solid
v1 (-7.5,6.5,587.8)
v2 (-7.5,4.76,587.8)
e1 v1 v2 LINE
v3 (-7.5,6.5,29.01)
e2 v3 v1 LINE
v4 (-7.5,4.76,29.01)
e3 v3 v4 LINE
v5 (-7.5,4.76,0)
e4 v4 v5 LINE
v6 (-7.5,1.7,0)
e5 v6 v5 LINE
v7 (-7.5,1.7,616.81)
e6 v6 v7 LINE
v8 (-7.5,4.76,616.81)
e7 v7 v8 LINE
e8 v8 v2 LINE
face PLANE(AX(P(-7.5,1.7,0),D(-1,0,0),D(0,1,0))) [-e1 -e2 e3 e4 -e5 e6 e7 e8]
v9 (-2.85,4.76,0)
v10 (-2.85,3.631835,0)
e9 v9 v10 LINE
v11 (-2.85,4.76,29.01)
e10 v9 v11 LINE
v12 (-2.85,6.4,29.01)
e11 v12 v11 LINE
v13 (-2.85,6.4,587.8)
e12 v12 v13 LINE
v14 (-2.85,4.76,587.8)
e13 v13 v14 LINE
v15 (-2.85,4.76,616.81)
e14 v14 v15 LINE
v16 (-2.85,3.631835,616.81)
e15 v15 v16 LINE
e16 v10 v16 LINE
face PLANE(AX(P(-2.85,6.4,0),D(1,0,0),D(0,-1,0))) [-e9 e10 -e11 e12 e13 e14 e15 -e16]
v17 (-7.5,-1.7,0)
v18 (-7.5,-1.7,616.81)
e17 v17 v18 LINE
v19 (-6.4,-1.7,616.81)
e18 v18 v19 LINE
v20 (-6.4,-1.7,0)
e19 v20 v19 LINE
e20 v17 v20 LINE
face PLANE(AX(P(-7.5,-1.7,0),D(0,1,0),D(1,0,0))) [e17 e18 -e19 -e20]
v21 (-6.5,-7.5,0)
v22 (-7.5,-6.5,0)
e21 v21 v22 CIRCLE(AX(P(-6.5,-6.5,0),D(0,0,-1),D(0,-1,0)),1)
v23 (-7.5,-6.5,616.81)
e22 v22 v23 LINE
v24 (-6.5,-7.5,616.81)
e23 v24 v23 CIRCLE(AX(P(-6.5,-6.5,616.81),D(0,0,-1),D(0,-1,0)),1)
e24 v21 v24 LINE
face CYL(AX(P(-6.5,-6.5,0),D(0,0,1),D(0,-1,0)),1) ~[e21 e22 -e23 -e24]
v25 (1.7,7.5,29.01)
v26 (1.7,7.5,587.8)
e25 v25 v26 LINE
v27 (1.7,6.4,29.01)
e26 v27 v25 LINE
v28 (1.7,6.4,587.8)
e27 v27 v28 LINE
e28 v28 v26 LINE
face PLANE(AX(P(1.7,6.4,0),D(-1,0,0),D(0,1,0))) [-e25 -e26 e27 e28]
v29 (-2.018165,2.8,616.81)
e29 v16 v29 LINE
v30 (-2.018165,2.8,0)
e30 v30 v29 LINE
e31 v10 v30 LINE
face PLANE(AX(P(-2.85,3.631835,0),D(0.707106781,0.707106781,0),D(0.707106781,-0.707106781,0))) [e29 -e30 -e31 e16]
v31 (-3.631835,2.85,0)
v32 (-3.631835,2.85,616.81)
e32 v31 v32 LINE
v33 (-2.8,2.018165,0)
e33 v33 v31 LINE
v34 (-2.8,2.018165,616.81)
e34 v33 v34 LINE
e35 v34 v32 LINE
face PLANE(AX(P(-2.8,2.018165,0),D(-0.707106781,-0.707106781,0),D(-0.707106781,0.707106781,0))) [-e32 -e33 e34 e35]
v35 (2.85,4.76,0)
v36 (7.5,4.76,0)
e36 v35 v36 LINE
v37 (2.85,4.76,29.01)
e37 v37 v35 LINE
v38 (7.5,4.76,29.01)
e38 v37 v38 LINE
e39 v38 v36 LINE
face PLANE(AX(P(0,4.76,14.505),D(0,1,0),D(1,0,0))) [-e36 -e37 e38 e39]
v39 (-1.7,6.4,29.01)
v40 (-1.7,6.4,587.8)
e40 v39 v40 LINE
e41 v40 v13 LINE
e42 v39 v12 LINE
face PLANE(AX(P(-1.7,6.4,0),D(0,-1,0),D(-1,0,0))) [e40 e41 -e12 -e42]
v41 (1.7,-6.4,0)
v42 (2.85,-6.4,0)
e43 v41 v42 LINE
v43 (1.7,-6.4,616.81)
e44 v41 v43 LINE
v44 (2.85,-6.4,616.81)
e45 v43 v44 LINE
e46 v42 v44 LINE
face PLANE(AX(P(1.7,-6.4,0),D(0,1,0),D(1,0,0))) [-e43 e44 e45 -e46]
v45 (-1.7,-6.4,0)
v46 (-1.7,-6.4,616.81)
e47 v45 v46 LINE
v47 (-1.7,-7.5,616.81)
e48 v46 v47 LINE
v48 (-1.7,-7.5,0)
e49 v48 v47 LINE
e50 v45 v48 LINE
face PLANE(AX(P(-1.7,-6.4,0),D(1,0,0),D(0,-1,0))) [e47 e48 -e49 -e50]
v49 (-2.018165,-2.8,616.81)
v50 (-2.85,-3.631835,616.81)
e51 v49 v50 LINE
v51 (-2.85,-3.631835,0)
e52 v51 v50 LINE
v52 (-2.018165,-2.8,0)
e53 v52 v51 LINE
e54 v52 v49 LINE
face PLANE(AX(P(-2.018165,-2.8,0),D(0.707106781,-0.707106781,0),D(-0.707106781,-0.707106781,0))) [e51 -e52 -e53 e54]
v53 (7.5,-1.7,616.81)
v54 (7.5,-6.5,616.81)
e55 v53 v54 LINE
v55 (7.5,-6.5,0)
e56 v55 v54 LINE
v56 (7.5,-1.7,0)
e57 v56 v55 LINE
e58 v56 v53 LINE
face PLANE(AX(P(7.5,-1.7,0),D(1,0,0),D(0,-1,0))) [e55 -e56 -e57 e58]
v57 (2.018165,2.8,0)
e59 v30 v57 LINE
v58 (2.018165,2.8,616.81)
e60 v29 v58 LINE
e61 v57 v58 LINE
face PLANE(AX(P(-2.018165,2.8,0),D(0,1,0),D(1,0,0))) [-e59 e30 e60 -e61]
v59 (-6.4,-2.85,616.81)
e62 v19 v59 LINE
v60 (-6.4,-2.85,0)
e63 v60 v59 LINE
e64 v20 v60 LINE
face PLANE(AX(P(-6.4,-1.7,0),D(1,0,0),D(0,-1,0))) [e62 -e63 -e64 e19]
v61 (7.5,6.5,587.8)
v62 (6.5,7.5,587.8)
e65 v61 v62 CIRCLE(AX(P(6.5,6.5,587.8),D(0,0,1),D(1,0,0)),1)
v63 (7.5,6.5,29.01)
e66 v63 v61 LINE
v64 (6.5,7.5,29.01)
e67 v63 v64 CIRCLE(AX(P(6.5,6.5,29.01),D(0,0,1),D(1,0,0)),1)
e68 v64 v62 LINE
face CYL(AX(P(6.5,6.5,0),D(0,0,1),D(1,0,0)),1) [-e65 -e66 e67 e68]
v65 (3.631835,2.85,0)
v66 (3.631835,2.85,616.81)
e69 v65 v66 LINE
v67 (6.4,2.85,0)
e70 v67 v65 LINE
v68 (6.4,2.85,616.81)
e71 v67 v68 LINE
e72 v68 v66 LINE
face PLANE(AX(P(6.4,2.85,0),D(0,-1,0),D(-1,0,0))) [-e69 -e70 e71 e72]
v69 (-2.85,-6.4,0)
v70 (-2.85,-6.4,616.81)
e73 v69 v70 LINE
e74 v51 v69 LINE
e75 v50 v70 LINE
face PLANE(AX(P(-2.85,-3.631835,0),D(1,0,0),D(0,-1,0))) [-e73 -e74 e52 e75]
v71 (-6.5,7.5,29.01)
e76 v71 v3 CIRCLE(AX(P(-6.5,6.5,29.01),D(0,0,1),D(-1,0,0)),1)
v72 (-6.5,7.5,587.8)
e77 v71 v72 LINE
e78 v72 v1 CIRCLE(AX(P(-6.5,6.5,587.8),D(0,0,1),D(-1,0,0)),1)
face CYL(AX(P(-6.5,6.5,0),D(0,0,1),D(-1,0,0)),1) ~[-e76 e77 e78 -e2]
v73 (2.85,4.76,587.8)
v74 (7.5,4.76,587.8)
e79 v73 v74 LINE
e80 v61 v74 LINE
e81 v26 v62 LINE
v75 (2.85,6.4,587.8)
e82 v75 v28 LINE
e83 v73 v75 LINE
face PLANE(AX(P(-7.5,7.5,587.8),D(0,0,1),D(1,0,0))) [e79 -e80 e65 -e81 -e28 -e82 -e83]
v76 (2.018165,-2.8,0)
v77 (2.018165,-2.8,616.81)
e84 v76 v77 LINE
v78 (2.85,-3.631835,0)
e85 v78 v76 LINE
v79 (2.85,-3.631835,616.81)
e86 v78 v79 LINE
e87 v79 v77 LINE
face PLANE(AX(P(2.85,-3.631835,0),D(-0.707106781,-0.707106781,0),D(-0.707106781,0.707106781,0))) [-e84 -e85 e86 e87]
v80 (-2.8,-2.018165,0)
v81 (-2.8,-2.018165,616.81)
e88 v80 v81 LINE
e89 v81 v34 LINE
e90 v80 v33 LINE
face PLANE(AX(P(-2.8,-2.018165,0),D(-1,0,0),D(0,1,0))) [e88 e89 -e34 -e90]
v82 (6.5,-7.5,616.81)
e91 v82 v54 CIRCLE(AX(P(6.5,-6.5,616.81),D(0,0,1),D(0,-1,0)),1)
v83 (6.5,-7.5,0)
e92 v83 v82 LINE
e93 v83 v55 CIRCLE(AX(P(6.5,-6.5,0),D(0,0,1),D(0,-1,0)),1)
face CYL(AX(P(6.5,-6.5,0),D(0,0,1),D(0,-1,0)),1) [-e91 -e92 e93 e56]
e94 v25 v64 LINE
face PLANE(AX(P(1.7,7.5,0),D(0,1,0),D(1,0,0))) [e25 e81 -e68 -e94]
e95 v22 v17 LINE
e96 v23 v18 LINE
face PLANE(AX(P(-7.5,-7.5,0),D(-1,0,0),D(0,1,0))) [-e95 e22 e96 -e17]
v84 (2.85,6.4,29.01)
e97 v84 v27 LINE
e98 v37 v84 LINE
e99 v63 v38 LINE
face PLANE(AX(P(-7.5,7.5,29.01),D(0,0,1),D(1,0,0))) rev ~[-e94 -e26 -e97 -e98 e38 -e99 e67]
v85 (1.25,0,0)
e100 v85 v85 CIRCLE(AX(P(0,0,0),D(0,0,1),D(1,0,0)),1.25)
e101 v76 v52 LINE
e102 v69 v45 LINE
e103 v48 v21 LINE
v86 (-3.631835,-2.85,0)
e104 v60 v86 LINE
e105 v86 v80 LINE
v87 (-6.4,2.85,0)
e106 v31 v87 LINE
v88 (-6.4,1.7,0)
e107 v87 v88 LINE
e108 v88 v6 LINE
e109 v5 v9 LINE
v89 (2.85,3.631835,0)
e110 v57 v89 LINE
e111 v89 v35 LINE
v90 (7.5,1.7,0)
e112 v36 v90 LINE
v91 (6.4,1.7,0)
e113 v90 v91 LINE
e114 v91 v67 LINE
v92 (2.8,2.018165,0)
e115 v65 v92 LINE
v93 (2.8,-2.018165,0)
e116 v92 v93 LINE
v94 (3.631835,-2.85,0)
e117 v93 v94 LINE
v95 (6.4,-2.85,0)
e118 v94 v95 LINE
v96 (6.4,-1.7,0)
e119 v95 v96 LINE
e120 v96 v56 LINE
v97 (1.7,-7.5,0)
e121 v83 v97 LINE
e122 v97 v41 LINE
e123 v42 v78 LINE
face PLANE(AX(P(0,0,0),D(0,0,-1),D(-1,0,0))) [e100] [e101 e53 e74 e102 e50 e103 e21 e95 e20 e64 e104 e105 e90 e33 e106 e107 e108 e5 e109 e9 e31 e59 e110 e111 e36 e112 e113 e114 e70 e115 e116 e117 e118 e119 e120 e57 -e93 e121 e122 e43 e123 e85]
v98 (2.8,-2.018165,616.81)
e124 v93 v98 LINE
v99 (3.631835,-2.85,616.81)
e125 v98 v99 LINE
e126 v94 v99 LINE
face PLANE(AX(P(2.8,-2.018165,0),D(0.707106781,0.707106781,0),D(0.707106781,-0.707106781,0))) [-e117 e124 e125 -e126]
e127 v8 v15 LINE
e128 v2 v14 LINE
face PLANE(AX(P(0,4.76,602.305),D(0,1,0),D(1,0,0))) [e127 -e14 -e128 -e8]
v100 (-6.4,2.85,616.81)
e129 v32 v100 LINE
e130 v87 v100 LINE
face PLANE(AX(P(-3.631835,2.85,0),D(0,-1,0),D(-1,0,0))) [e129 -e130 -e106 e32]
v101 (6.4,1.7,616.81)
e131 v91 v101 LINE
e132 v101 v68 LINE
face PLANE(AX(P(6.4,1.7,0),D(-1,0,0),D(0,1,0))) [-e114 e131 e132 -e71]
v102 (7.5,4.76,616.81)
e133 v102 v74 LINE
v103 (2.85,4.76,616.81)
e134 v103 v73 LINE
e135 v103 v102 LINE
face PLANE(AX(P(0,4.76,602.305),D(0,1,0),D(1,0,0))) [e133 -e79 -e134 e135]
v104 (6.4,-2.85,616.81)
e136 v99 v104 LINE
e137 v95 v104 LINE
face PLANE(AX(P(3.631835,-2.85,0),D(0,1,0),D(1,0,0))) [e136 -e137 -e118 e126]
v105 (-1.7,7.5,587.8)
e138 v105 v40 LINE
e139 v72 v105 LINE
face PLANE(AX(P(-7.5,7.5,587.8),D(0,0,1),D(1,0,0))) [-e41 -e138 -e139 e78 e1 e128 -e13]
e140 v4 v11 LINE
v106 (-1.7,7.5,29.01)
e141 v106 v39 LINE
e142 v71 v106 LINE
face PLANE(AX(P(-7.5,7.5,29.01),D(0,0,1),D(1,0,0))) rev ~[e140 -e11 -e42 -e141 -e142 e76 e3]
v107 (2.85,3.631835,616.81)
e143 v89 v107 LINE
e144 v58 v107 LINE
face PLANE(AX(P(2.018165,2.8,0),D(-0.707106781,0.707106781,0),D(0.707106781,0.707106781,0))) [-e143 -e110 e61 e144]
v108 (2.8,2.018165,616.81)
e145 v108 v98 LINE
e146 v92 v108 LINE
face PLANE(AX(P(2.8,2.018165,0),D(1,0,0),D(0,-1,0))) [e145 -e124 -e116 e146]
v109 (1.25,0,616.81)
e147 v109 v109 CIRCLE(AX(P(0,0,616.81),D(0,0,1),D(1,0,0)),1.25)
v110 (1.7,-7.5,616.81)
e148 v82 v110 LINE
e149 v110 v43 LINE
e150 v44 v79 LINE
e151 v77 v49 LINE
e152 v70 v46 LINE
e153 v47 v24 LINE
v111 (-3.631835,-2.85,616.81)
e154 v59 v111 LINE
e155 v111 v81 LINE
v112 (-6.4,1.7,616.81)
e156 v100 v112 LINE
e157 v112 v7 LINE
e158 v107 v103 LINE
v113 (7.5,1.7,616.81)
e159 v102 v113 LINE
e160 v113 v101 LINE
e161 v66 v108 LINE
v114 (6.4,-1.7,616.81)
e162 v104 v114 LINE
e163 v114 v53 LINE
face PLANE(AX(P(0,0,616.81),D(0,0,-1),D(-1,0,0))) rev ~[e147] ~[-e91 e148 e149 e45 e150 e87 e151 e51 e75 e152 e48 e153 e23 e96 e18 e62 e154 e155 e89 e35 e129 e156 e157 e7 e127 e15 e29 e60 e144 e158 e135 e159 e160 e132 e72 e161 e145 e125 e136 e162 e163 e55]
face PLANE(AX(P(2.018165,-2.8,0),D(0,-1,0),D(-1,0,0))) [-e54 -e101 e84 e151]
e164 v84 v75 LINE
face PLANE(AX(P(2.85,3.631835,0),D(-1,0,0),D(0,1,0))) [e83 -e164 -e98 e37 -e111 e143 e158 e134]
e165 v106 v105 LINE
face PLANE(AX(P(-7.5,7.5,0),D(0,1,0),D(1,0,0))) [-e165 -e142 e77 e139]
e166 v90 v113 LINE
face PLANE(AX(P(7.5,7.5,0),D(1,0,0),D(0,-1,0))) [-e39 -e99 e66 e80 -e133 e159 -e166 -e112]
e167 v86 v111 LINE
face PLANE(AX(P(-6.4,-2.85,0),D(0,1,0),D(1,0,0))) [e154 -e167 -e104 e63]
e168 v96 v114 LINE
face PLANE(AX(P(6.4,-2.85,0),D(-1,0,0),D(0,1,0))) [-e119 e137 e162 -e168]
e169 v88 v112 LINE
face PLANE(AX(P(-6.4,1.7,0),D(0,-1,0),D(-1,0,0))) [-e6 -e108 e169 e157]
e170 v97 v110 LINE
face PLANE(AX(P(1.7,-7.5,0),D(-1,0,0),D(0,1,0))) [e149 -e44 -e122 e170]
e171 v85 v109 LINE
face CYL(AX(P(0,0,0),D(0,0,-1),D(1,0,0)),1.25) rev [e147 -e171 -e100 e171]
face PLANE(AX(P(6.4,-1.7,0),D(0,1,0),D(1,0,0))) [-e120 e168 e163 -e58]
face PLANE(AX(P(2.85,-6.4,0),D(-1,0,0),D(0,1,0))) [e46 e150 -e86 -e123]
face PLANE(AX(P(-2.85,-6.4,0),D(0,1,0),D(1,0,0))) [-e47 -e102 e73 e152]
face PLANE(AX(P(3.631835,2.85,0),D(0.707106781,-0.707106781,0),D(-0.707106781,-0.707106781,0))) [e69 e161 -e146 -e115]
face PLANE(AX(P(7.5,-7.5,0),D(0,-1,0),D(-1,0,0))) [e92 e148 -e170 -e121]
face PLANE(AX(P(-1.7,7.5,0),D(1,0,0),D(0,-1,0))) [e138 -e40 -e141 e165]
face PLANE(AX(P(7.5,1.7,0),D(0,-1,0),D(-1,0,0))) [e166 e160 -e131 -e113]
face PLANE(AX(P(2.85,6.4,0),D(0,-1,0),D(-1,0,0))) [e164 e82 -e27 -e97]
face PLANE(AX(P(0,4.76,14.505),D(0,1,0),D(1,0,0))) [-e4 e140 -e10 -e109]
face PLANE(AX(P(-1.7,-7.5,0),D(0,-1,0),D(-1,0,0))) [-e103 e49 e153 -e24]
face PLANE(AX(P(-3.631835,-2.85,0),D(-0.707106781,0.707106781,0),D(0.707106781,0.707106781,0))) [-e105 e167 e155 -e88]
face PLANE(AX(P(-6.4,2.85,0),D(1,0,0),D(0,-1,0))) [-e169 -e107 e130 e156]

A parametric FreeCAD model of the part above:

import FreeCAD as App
import Part
import Sketcher
Q = App.Units.Quantity


def edges_at(feature, points):
    """Names of the edges that pass closest to the given points."""
    edges = feature.Shape.Edges
    near = lambda p: min(range(len(edges)), key=lambda i: edges[i].distToShape(Part.Vertex(*p))[0])
    return sorted({f"Edge{near(p) + 1}" for p in points})


def add_polygon(sketch, points):
    """Adds a closed chain of lines whose ends are joined by coincident constraints."""
    first, n = sketch.GeometryCount, len(points)
    for a, b in zip(points, points[1:] + points[:1]):
        sketch.addGeometry(Part.LineSegment(App.Vector(*a, 0), App.Vector(*b, 0)), False)
    for i in range(n):
        sketch.addConstraint(Sketcher.Constraint("Coincident", first + i, 2, first + (i + 1) % n, 1))

doc = App.newDocument("Part")
params = doc.addObject("Spreadsheet::Sheet", "Params")
for row, (alias, value) in enumerate([
    ("sketch1_diameter", "2.5 mm"),
    ("sketch1_width", "5.8 mm"),
    ("sketch1_width2", "1.1 mm"),
    ("sketch1_width3", "1.15 mm"),
    ("pad1_length", "616.81 mm"),
    ("fillet_radius", "1 mm"),
    ("sketch2_width", "15 mm"),
    ("sketch2_height", "29.01 mm"),
    ("pocket1_length", "2.74 mm"),
    ("sketch3_width", "15 mm"),
    ("sketch3_height", "29.01 mm"),
    ("pocket2_length", "2.74 mm"),
], start=1):
    params.set(f"A{row}", alias)
    params.set(f"B{row}", "=" + value)
    params.setAlias(f"B{row}", alias)

body = doc.addObject("PartDesign::Body", "Body")

# Sketch on XY plane
sketch1 = body.newObject("Sketcher::SketchObject", "Sketch")
sketch1.AttachmentSupport = (doc.getObject("XY_Plane"), [""])
sketch1.MapMode = "FlatFace"
add_polygon(sketch1, [(1.7, -7.5), (7.5, -7.5), (7.5, -1.7), (6.4, -1.7), (6.4, -2.9), (3.6, -2.9), (2.8, -2), (2.8, 2), (3.6, 2.9), (6.4, 2.9), (6.4, 1.7), (7.5, 1.7), (7.5, 7.5), (1.7, 7.5), (1.7, 6.4), (2.9, 6.4), (2.9, 3.6), (2, 2.8), (-2, 2.8), (-2.9, 3.6), (-2.9, 6.4), (-1.7, 6.4), (-1.7, 7.5), (-7.5, 7.5), (-7.5, 1.7), (-6.4, 1.7), (-6.4, 2.9), (-3.6, 2.9), (-2.8, 2), (-2.8, -2), (-3.6, -2.9), (-6.4, -2.9), (-6.4, -1.7), (-7.5, -1.7), (-7.5, -7.5), (-1.7, -7.5), (-1.7, -6.4), (-2.9, -6.4), (-2.9, -3.6), (-2, -2.8), (2, -2.8), (2.9, -3.6), (2.9, -6.4), (1.7, -6.4)])  # lines 0-43
sketch1.addGeometry(Part.Circle(App.Vector(0, 0, 0), App.Vector(0, 0, 1), 1.2), False)  # 44
sketch1.addConstraint(Sketcher.Constraint("Horizontal", 0))
sketch1.addConstraint(Sketcher.Constraint("Vertical", 1))
sketch1.addConstraint(Sketcher.Constraint("Horizontal", 2))
sketch1.addConstraint(Sketcher.Constraint("Vertical", 3))
sketch1.addConstraint(Sketcher.Constraint("Horizontal", 4))
sketch1.addConstraint(Sketcher.Constraint("Vertical", 6))
sketch1.addConstraint(Sketcher.Constraint("Horizontal", 8))
sketch1.addConstraint(Sketcher.Constraint("Vertical", 9))
sketch1.addConstraint(Sketcher.Constraint("Horizontal", 10))
sketch1.addConstraint(Sketcher.Constraint("Vertical", 11))
sketch1.addConstraint(Sketcher.Constraint("Horizontal", 12))
sketch1.addConstraint(Sketcher.Constraint("Vertical", 13))
sketch1.addConstraint(Sketcher.Constraint("Horizontal", 14))
sketch1.addConstraint(Sketcher.Constraint("Vertical", 15))
sketch1.addConstraint(Sketcher.Constraint("Horizontal", 17))
sketch1.addConstraint(Sketcher.Constraint("Vertical", 19))
sketch1.addConstraint(Sketcher.Constraint("Horizontal", 20))
sketch1.addConstraint(Sketcher.Constraint("Vertical", 21))
sketch1.addConstraint(Sketcher.Constraint("Horizontal", 22))
sketch1.addConstraint(Sketcher.Constraint("Vertical", 23))
sketch1.addConstraint(Sketcher.Constraint("Horizontal", 24))
sketch1.addConstraint(Sketcher.Constraint("Vertical", 25))
sketch1.addConstraint(Sketcher.Constraint("Horizontal", 26))
sketch1.addConstraint(Sketcher.Constraint("Vertical", 28))
sketch1.addConstraint(Sketcher.Constraint("Horizontal", 30))
sketch1.addConstraint(Sketcher.Constraint("Vertical", 31))
sketch1.addConstraint(Sketcher.Constraint("Horizontal", 32))
sketch1.addConstraint(Sketcher.Constraint("Vertical", 33))
sketch1.addConstraint(Sketcher.Constraint("Horizontal", 34))
sketch1.addConstraint(Sketcher.Constraint("Vertical", 35))
sketch1.addConstraint(Sketcher.Constraint("Horizontal", 36))
sketch1.addConstraint(Sketcher.Constraint("Vertical", 37))
sketch1.addConstraint(Sketcher.Constraint("Horizontal", 39))
sketch1.addConstraint(Sketcher.Constraint("Vertical", 41))
sketch1.addConstraint(Sketcher.Constraint("Horizontal", 42))
sketch1.addConstraint(Sketcher.Constraint("Vertical", 43))
sketch1.addConstraint(Sketcher.Constraint("Coincident", 44, 3, -1, 1))
sketch1.addConstraint(Sketcher.Constraint("Symmetric", 0, 2, 22, 2, -1, 1))
sketch1.addConstraint(Sketcher.Constraint("Symmetric", 2, 2, 24, 2, -1, 1))
sketch1.addConstraint(Sketcher.Constraint("Symmetric", 4, 2, 26, 2, -1, 1))
sketch1.addConstraint(Sketcher.Constraint("Symmetric", 5, 2, 27, 2, -1, 1))
sketch1.addConstraint(Sketcher.Constraint("Symmetric", 7, 2, 29, 2, -1, 1))
sketch1.addConstraint(Sketcher.Constraint("Symmetric", 9, 2, 31, 2, -1, 1))
sketch1.addConstraint(Sketcher.Constraint("Symmetric", 11, 2, 33, 2, -1, 1))
sketch1.addConstraint(Sketcher.Constraint("Symmetric", 13, 2, 35, 2, -1, 1))
sketch1.addConstraint(Sketcher.Constraint("Symmetric", 15, 2, 37, 2, -1, 1))
sketch1.addConstraint(Sketcher.Constraint("Symmetric", 16, 2, 38, 2, -1, 1))
sketch1.addConstraint(Sketcher.Constraint("Symmetric", 18, 2, 40, 2, -1, 1))
sketch1.addConstraint(Sketcher.Constraint("Symmetric", 20, 2, 42, 2, -1, 1))
sketch1.addConstraint(Sketcher.Constraint("Symmetric", 15, 2, 18, 2, -2))
sketch1.addConstraint(Sketcher.Constraint("Symmetric", 13, 2, 20, 2, -2))
sketch1.addConstraint(Sketcher.Constraint("Symmetric", 11, 2, 22, 2, -2))
sketch1.addConstraint(Sketcher.Constraint("Symmetric", 9, 2, 24, 2, -2))
sketch1.addConstraint(Sketcher.Constraint("Symmetric", 7, 2, 26, 2, -2))
sketch1.addConstraint(Sketcher.Constraint("Perpendicular", 5, 7))
sketch1.addConstraint(Sketcher.Constraint("Parallel", 7, 16))
sketch1.addConstraint(Sketcher.Constraint("Perpendicular", 16, 18))
sketch1.addConstraint(Sketcher.Constraint("Perpendicular", 27, 29))
sketch1.addConstraint(Sketcher.Constraint("Perpendicular", 38, 40))
sketch1.addConstraint(Sketcher.Constraint("Horizontal", 6, 2, 27, 2))
sketch1.addConstraint(Sketcher.Constraint("Equal", 34, 1))
sketch1.addConstraint(Sketcher.Constraint("Equal", 42, 3))
sketch1.addConstraint(Sketcher.Constraint("Equal", 39, 6))
sketch1.addConstraint(Sketcher.Constraint("Equal", 32, 13))
sketch1.addConstraint(Sketcher.Constraint("Equal", 30, 15))
sketch1.addConstraint(Sketcher.Constraint("Equal", 7, 16))
sketch1.addConstraint(Sketcher.Constraint("Diameter", 44, Q("2.5 mm")))
sketch1.addConstraint(Sketcher.Constraint("DistanceX", 0, 1, 0, 2, Q("5.8 mm")))
sketch1.addConstraint(Sketcher.Constraint("DistanceX", 2, 2, 2, 1, Q("1.1 mm")))
sketch1.addConstraint(Sketcher.Constraint("DistanceX", 14, 1, 14, 2, Q("1.15 mm")))
sketch1.addConstraint(Sketcher.Constraint("DistanceX", -1, 1, 0, 2, Q("7.5 mm")))
sketch1.addConstraint(Sketcher.Constraint("DistanceX", -1, 1, 5, 2, Q("2.8 mm")))
sketch1.addConstraint(Sketcher.Constraint("DistanceX", 17, 2, 17, 1, Q("4.03633 mm")))
sketch1.setExpression("Constraints[110]", "Params.sketch1_diameter")
sketch1.setExpression("Constraints[111]", "Params.sketch1_width")
sketch1.setExpression("Constraints[112]", "Params.sketch1_width2")
sketch1.setExpression("Constraints[113]", "Params.sketch1_width3")
pad1 = body.newObject("PartDesign::Pad", "Pad")
pad1.Profile = sketch1
pad1.setExpression("Length", "Params.pad1_length")
doc.recompute()

fillet = body.newObject("PartDesign::Fillet", "Fillet")
fillet.Base = (pad1, edges_at(pad1, [
    (-7.5, 7.5, 308.405),
    (7.5, 7.5, 308.405),
    (7.5, -7.5, 308.405),
    (-7.5, -7.5, 308.405),
]))
fillet.setExpression("Radius", "Params.fillet_radius")

# Sketch on XZ plane
sketch2 = body.newObject("Sketcher::SketchObject", "Sketch001")
sketch2.AttachmentSupport = (doc.getObject("XZ_Plane"), [""])
sketch2.MapMode = "FlatFace"
sketch2.AttachmentOffset = App.Placement(App.Vector(0, 0, -7.5), App.Rotation())
add_polygon(sketch2, [(-8, 588), (-8, 617), (8, 617), (8, 588)])  # lines 0-3
sketch2.addConstraint(Sketcher.Constraint("Vertical", 0))
sketch2.addConstraint(Sketcher.Constraint("Horizontal", 1))
sketch2.addConstraint(Sketcher.Constraint("Vertical", 2))
sketch2.addConstraint(Sketcher.Constraint("Horizontal", 3))
sketch2.addConstraint(Sketcher.Constraint("DistanceX", 1, 1, 1, 2, Q("15 mm")))
sketch2.addConstraint(Sketcher.Constraint("DistanceY", 0, 1, 0, 2, Q("29.01 mm")))
sketch2.addConstraint(Sketcher.Constraint("DistanceX", 0, 2, -1, 1, Q("7.5 mm")))
sketch2.addConstraint(Sketcher.Constraint("DistanceY", -1, 1, 2, 2, Q("587.8 mm")))
sketch2.setExpression("Constraints[8]", "Params.sketch2_width")
sketch2.setExpression("Constraints[9]", "Params.sketch2_height")
pocket1 = body.newObject("PartDesign::Pocket", "Pocket")
pocket1.Profile = sketch2
pocket1.setExpression("Length", "Params.pocket1_length")
pocket1.Reversed = True

# Sketch on XZ plane
sketch3 = body.newObject("Sketcher::SketchObject", "Sketch002")
sketch3.AttachmentSupport = (doc.getObject("XZ_Plane"), [""])
sketch3.MapMode = "FlatFace"
sketch3.AttachmentOffset = App.Placement(App.Vector(0, 0, -7.5), App.Rotation())
add_polygon(sketch3, [(-8, 0), (-8, 29), (8, 29), (8, 0)])  # lines 0-3
sketch3.addConstraint(Sketcher.Constraint("Vertical", 0))
sketch3.addConstraint(Sketcher.Constraint("Horizontal", 1))
sketch3.addConstraint(Sketcher.Constraint("Vertical", 2))
sketch3.addConstraint(Sketcher.Constraint("Horizontal", 3))
sketch3.addConstraint(Sketcher.Constraint("Symmetric", 2, 2, 3, 2, -1, 1))
sketch3.addConstraint(Sketcher.Constraint("DistanceX", 1, 1, 1, 2, Q("15 mm")))
sketch3.addConstraint(Sketcher.Constraint("DistanceY", 0, 1, 0, 2, Q("29.01 mm")))
sketch3.setExpression("Constraints[9]", "Params.sketch3_width")
sketch3.setExpression("Constraints[10]", "Params.sketch3_height")
pocket2 = body.newObject("PartDesign::Pocket", "Pocket001")
pocket2.Profile = sketch3
pocket2.setExpression("Length", "Params.pocket2_length")
pocket2.Reversed = True

doc.recompute()
